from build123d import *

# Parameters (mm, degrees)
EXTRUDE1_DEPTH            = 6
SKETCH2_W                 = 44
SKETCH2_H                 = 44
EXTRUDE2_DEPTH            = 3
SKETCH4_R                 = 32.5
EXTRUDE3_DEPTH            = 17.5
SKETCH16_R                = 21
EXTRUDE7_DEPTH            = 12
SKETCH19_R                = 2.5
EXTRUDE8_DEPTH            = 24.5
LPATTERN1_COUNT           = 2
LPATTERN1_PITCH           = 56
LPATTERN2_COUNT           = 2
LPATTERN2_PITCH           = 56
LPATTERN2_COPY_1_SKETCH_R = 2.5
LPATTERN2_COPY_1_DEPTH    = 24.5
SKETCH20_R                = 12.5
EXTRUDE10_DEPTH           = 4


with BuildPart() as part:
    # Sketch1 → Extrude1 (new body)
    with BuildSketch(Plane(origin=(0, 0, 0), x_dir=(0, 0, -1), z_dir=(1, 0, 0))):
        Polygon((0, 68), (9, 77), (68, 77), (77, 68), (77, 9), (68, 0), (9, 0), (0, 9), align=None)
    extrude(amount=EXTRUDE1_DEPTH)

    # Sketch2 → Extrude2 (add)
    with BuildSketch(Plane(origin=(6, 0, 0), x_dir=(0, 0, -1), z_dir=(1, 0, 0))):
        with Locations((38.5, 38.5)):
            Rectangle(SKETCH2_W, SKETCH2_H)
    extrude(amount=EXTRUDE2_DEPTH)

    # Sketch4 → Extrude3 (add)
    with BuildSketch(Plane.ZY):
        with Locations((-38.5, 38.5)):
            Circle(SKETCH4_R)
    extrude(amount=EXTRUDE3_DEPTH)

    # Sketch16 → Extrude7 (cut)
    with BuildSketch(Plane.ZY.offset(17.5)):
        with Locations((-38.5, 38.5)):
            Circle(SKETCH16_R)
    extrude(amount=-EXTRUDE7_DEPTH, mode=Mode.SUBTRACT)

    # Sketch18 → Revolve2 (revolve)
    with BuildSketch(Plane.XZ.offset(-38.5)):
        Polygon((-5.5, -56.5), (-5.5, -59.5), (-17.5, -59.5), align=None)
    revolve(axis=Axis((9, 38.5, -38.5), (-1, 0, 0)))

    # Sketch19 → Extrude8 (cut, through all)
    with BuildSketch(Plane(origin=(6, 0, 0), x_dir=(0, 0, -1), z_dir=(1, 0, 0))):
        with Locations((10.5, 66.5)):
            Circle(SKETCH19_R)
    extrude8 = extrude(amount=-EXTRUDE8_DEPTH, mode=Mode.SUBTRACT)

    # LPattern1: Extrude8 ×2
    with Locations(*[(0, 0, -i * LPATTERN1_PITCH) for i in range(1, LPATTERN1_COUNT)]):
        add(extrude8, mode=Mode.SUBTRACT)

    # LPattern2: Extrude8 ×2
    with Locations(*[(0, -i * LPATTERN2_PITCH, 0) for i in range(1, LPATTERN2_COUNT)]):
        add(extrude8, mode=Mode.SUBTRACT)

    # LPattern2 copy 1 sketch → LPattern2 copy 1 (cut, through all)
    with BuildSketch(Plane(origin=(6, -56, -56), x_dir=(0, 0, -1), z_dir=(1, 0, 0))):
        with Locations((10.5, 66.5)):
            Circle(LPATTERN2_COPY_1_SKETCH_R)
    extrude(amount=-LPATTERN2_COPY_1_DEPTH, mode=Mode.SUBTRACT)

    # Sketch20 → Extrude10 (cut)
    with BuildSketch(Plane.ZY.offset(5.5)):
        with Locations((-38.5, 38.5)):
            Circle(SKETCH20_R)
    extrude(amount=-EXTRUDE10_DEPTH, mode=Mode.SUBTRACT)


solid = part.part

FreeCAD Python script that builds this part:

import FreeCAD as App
import Part
import Sketcher

V = App.Vector

doc = App.newDocument("Part")
body = doc.addObject("PartDesign::Body", "Body")

sketch1 = doc.addObject("Sketcher::SketchObject", "Sketch")
body.addObject(sketch1)
sketch1.AttachmentSupport = (doc.YZ_Plane, [""])
sketch1.MapMode = "FlatFace"
sketch1.addGeometry(Part.LineSegment(V(77, -9, 0), V(68, 0, 0)), False)
sketch1.addGeometry(Part.LineSegment(V(68, 0, 0), V(9, 0, 0)), False)
sketch1.addGeometry(Part.LineSegment(V(9, 0, 0), V(0, -9, 0)), False)
sketch1.addGeometry(Part.LineSegment(V(0, -9, 0), V(0, -68, 0)), False)
sketch1.addGeometry(Part.LineSegment(V(0, -68, 0), V(9, -77, 0)), False)
sketch1.addGeometry(Part.LineSegment(V(9, -77, 0), V(68, -77, 0)), False)
sketch1.addGeometry(Part.LineSegment(V(68, -77, 0), V(77, -68, 0)), False)
sketch1.addGeometry(Part.LineSegment(V(77, -68, 0), V(77, -9, 0)), False)
sketch1.addConstraint(Sketcher.Constraint("Coincident", 0, 2, 1, 1))
sketch1.addConstraint(Sketcher.Constraint("Coincident", 1, 2, 2, 1))
sketch1.addConstraint(Sketcher.Constraint("Coincident", 2, 2, 3, 1))
sketch1.addConstraint(Sketcher.Constraint("Coincident", 3, 2, 4, 1))
sketch1.addConstraint(Sketcher.Constraint("Coincident", 4, 2, 5, 1))
sketch1.addConstraint(Sketcher.Constraint("Coincident", 5, 2, 6, 1))
sketch1.addConstraint(Sketcher.Constraint("Coincident", 6, 2, 7, 1))
sketch1.addConstraint(Sketcher.Constraint("Coincident", 7, 2, 0, 1))
sketch1.addConstraint(Sketcher.Constraint("Horizontal", 1))
sketch1.addConstraint(Sketcher.Constraint("Vertical", 3))
sketch1.addConstraint(Sketcher.Constraint("Horizontal", 5))
sketch1.addConstraint(Sketcher.Constraint("Vertical", 7))
sketch1.addConstraint(Sketcher.Constraint("PointOnObject", 0, 2, -1))
sketch1.addConstraint(Sketcher.Constraint("PointOnObject", 2, 2, -2))
sketch1.addConstraint(Sketcher.Constraint("Perpendicular", 0, 2))
sketch1.addConstraint(Sketcher.Constraint("Perpendicular", 2, 4))
sketch1.addConstraint(Sketcher.Constraint("Perpendicular", 4, 6))
sketch1.addConstraint(Sketcher.Constraint("Horizontal", 3, 2, 6, 2))
sketch1.addConstraint(Sketcher.Constraint("Horizontal", 2, 2, 7, 2))
sketch1.addConstraint(Sketcher.Constraint("Vertical", 1, 2, 4, 2))
sketch1.addConstraint(Sketcher.Constraint("Vertical", 0, 2, 5, 2))
sketch1.addConstraint(Sketcher.Constraint("Equal", 5, 3))
sketch1.addConstraint(Sketcher.Constraint("DistanceX", 1, 2, 1, 1, 59.0))
sketch1.addConstraint(Sketcher.Constraint("DistanceX", -1, 1, 0, 2, 68.0))
pad1 = doc.addObject("PartDesign::Pad", "Pad")
body.addObject(pad1)
pad1.Profile = sketch1
pad1.Length = 6

sketch2 = doc.addObject("Sketcher::SketchObject", "Sketch001")
body.addObject(sketch2)
sketch2.AttachmentSupport = (doc.YZ_Plane, [""])
sketch2.MapMode = "FlatFace"
sketch2.AttachmentOffset = App.Placement(V(0, 0, 6), App.Rotation())
sketch2.addGeometry(Part.LineSegment(V(60, -16, 0), V(16, -16, 0)), False)
sketch2.addGeometry(Part.LineSegment(V(16, -16, 0), V(16, -60, 0)), False)
sketch2.addGeometry(Part.LineSegment(V(16, -60, 0), V(60, -60, 0)), False)
sketch2.addGeometry(Part.LineSegment(V(60, -60, 0), V(60, -16, 0)), False)
sketch2.addConstraint(Sketcher.Constraint("Coincident", 0, 2, 1, 1))
sketch2.addConstraint(Sketcher.Constraint("Coincident", 1, 2, 2, 1))
sketch2.addConstraint(Sketcher.Constraint("Coincident", 2, 2, 3, 1))
sketch2.addConstraint(Sketcher.Constraint("Coincident", 3, 2, 0, 1))
sketch2.addConstraint(Sketcher.Constraint("Horizontal", 0))
sketch2.addConstraint(Sketcher.Constraint("Vertical", 1))
sketch2.addConstraint(Sketcher.Constraint("Horizontal", 2))
sketch2.addConstraint(Sketcher.Constraint("Vertical", 3))
sketch2.addConstraint(Sketcher.Constraint("Equal", 2, 1))
sketch2.addConstraint(Sketcher.Constraint("DistanceX", 0, 2, 0, 1, 44.0))
sketch2.addConstraint(Sketcher.Constraint("DistanceX", -1, 1, 0, 2, 16.5))
sketch2.addConstraint(Sketcher.Constraint("DistanceY", 0, 2, -1, 1, 16.5))
pad2 = doc.addObject("PartDesign::Pad", "Pad001")
body.addObject(pad2)
pad2.Profile = sketch2
pad2.Length = 3

sketch3 = doc.addObject("Sketcher::SketchObject", "Sketch002")
body.addObject(sketch3)
sketch3.AttachmentSupport = (doc.YZ_Plane, [""])
sketch3.MapMode = "FlatFace"
sketch3.addGeometry(Part.Circle(V(38, -38, 0), V(0, 0, 1), 32), False)
sketch3.addConstraint(Sketcher.Constraint("Diameter", 0, 65.0))
sketch3.addConstraint(Sketcher.Constraint("DistanceX", -1, 1, 0, 3, 38.5))
sketch3.addConstraint(Sketcher.Constraint("DistanceY", 0, 3, -1, 1, 38.5))
pad3 = doc.addObject("PartDesign::Pad", "Pad002")
body.addObject(pad3)
pad3.Profile = sketch3
pad3.Length = 17.5
pad3.Reversed = True

sketch4 = doc.addObject("Sketcher::SketchObject", "Sketch003")
body.addObject(sketch4)
sketch4.AttachmentSupport = (doc.YZ_Plane, [""])
sketch4.MapMode = "FlatFace"
sketch4.AttachmentOffset = App.Placement(V(0, 0, -17.5), App.Rotation())
sketch4.addGeometry(Part.Circle(V(38, -38, 0), V(0, 0, 1), 21), False)
sketch4.addConstraint(Sketcher.Constraint("Diameter", 0, 42.0))
sketch4.addConstraint(Sketcher.Constraint("DistanceX", -1, 1, 0, 3, 38.5))
sketch4.addConstraint(Sketcher.Constraint("DistanceY", 0, 3, -1, 1, 38.5))
pocket1 = doc.addObject("PartDesign::Pocket", "Pocket")
body.addObject(pocket1)
pocket1.Profile = sketch4
pocket1.Length = 12
pocket1.Reversed = True

sketch5 = doc.addObject("Sketcher::SketchObject", "Sketch004")
body.addObject(sketch5)
sketch5.AttachmentSupport = (doc.XZ_Plane, [""])
sketch5.MapMode = "FlatFace"
sketch5.AttachmentOffset = App.Placement(V(0, 0, -38.5), App.Rotation())
sketch5.addGeometry(Part.LineSegment(V(-5.5, -59.5, 0), V(-5.5, -56.5, 0)), False)
sketch5.addGeometry(Part.LineSegment(V(-5.5, -56.5, 0), V(-17.5, -59.5, 0)), False)
sketch5.addGeometry(Part.LineSegment(V(-17.5, -59.5, 0), V(-5.5, -59.5, 0)), False)
sketch5.addGeometry(Part.LineSegment(V(-5.5, -38.5, 0), V(-17.5, -38.5, 0)), True)
sketch5.addConstraint(Sketcher.Constraint("Coincident", 0, 2, 1, 1))
sketch5.addConstraint(Sketcher.Constraint("Coincident", 1, 2, 2, 1))
sketch5.addConstraint(Sketcher.Constraint("Coincident", 2, 2, 0, 1))
sketch5.addConstraint(Sketcher.Constraint("Vertical", 0))
sketch5.addConstraint(Sketcher.Constraint("Horizontal", 2))
sketch5.addConstraint(Sketcher.Constraint("Horizontal", 3))
sketch5.addConstraint(Sketcher.Constraint("Vertical", 2, 2, 3, 1))
sketch5.addConstraint(Sketcher.Constraint("Vertical", 1, 2, 3, 2))
sketch5.addConstraint(Sketcher.Constraint("DistanceX", 2, 1, 2, 2, 12.0))
sketch5.addConstraint(Sketcher.Constraint("DistanceY", 0, 1, 0, 2, 3.0))
sketch5.addConstraint(Sketcher.Constraint("DistanceY", 0, 2, 3, 1, 18.0))
sketch5.addConstraint(Sketcher.Constraint("DistanceX", 0, 2, -1, 1, 5.5))
sketch5.addConstraint(Sketcher.Constraint("DistanceY", 0, 2, -1, 1, 56.5))
revolution = doc.addObject("PartDesign::Revolution", "Revolution")
body.addObject(revolution)
revolution.Profile = sketch5
revolution.ReferenceAxis = (sketch5, ["Axis0"])
revolution.Angle = 360

sketch6 = doc.addObject("Sketcher::SketchObject", "Sketch005")
body.addObject(sketch6)
sketch6.AttachmentSupport = (doc.YZ_Plane, [""])
sketch6.MapMode = "FlatFace"
sketch6.AttachmentOffset = App.Placement(V(0, 0, 6), App.Rotation())
sketch6.addGeometry(Part.Circle(V(66.5, -10.5, 0), V(0, 0, 1), 2.5), False)
sketch6.addConstraint(Sketcher.Constraint("Diameter", 0, 5.0))
sketch6.addConstraint(Sketcher.Constraint("DistanceX", -1, 1, 0, 3, 66.5))
sketch6.addConstraint(Sketcher.Constraint("DistanceY", 0, 3, -1, 1, 10.5))
pocket2 = doc.addObject("PartDesign::Pocket", "Pocket001")
body.addObject(pocket2)
pocket2.Profile = sketch6
pocket2.Type = "ThroughAll"
doc.recompute()

linearpattern = doc.addObject("PartDesign::LinearPattern", "LinearPattern")
body.addObject(linearpattern)
linearpattern.Originals = [pocket2]
linearpattern.Direction = (doc.Z_Axis, [""])
linearpattern.Mode = "offset"
linearpattern.Offset = 56
linearpattern.Occurrences = 2
linearpattern.Reversed = True
body.Tip = linearpattern
doc.recompute()

linearpattern2 = doc.addObject("PartDesign::LinearPattern", "LinearPattern001")
body.addObject(linearpattern2)
linearpattern2.Originals = [pocket2]
linearpattern2.Direction = (doc.Y_Axis, [""])
linearpattern2.Mode = "offset"
linearpattern2.Offset = 56
linearpattern2.Occurrences = 2
linearpattern2.Reversed = True
body.Tip = linearpattern2

sketch7 = doc.addObject("Sketcher::SketchObject", "Sketch006")
body.addObject(sketch7)
sketch7.AttachmentSupport = (doc.YZ_Plane, [""])
sketch7.MapMode = "FlatFace"
sketch7.AttachmentOffset = App.Placement(V(0, 0, 6), App.Rotation())
sketch7.addGeometry(Part.Circle(V(10.5, -66.5, 0), V(0, 0, 1), 2.5), False)
sketch7.addConstraint(Sketcher.Constraint("Diameter", 0, 5.0))
sketch7.addConstraint(Sketcher.Constraint("DistanceX", -1, 1, 0, 3, 10.5))
sketch7.addConstraint(Sketcher.Constraint("DistanceY", 0, 3, -1, 1, 66.5))
pocket3 = doc.addObject("PartDesign::Pocket", "Pocket002")
body.addObject(pocket3)
pocket3.Profile = sketch7
pocket3.Type = "ThroughAll"

sketch8 = doc.addObject("Sketcher::SketchObject", "Sketch007")
body.addObject(sketch8)
sketch8.AttachmentSupport = (doc.YZ_Plane, [""])
sketch8.MapMode = "FlatFace"
sketch8.AttachmentOffset = App.Placement(V(0, 0, -5.5), App.Rotation())
sketch8.addGeometry(Part.Circle(V(38, -38, 0), V(0, 0, 1), 12), False)
sketch8.addConstraint(Sketcher.Constraint("Diameter", 0, 25.0))
sketch8.addConstraint(Sketcher.Constraint("DistanceX", -1, 1, 0, 3, 38.5))
sketch8.addConstraint(Sketcher.Constraint("DistanceY", 0, 3, -1, 1, 38.5))
pocket4 = doc.addObject("PartDesign::Pocket", "Pocket003")
body.addObject(pocket4)
pocket4.Profile = sketch8
pocket4.Length = 4
pocket4.Reversed = True

doc.recompute()
